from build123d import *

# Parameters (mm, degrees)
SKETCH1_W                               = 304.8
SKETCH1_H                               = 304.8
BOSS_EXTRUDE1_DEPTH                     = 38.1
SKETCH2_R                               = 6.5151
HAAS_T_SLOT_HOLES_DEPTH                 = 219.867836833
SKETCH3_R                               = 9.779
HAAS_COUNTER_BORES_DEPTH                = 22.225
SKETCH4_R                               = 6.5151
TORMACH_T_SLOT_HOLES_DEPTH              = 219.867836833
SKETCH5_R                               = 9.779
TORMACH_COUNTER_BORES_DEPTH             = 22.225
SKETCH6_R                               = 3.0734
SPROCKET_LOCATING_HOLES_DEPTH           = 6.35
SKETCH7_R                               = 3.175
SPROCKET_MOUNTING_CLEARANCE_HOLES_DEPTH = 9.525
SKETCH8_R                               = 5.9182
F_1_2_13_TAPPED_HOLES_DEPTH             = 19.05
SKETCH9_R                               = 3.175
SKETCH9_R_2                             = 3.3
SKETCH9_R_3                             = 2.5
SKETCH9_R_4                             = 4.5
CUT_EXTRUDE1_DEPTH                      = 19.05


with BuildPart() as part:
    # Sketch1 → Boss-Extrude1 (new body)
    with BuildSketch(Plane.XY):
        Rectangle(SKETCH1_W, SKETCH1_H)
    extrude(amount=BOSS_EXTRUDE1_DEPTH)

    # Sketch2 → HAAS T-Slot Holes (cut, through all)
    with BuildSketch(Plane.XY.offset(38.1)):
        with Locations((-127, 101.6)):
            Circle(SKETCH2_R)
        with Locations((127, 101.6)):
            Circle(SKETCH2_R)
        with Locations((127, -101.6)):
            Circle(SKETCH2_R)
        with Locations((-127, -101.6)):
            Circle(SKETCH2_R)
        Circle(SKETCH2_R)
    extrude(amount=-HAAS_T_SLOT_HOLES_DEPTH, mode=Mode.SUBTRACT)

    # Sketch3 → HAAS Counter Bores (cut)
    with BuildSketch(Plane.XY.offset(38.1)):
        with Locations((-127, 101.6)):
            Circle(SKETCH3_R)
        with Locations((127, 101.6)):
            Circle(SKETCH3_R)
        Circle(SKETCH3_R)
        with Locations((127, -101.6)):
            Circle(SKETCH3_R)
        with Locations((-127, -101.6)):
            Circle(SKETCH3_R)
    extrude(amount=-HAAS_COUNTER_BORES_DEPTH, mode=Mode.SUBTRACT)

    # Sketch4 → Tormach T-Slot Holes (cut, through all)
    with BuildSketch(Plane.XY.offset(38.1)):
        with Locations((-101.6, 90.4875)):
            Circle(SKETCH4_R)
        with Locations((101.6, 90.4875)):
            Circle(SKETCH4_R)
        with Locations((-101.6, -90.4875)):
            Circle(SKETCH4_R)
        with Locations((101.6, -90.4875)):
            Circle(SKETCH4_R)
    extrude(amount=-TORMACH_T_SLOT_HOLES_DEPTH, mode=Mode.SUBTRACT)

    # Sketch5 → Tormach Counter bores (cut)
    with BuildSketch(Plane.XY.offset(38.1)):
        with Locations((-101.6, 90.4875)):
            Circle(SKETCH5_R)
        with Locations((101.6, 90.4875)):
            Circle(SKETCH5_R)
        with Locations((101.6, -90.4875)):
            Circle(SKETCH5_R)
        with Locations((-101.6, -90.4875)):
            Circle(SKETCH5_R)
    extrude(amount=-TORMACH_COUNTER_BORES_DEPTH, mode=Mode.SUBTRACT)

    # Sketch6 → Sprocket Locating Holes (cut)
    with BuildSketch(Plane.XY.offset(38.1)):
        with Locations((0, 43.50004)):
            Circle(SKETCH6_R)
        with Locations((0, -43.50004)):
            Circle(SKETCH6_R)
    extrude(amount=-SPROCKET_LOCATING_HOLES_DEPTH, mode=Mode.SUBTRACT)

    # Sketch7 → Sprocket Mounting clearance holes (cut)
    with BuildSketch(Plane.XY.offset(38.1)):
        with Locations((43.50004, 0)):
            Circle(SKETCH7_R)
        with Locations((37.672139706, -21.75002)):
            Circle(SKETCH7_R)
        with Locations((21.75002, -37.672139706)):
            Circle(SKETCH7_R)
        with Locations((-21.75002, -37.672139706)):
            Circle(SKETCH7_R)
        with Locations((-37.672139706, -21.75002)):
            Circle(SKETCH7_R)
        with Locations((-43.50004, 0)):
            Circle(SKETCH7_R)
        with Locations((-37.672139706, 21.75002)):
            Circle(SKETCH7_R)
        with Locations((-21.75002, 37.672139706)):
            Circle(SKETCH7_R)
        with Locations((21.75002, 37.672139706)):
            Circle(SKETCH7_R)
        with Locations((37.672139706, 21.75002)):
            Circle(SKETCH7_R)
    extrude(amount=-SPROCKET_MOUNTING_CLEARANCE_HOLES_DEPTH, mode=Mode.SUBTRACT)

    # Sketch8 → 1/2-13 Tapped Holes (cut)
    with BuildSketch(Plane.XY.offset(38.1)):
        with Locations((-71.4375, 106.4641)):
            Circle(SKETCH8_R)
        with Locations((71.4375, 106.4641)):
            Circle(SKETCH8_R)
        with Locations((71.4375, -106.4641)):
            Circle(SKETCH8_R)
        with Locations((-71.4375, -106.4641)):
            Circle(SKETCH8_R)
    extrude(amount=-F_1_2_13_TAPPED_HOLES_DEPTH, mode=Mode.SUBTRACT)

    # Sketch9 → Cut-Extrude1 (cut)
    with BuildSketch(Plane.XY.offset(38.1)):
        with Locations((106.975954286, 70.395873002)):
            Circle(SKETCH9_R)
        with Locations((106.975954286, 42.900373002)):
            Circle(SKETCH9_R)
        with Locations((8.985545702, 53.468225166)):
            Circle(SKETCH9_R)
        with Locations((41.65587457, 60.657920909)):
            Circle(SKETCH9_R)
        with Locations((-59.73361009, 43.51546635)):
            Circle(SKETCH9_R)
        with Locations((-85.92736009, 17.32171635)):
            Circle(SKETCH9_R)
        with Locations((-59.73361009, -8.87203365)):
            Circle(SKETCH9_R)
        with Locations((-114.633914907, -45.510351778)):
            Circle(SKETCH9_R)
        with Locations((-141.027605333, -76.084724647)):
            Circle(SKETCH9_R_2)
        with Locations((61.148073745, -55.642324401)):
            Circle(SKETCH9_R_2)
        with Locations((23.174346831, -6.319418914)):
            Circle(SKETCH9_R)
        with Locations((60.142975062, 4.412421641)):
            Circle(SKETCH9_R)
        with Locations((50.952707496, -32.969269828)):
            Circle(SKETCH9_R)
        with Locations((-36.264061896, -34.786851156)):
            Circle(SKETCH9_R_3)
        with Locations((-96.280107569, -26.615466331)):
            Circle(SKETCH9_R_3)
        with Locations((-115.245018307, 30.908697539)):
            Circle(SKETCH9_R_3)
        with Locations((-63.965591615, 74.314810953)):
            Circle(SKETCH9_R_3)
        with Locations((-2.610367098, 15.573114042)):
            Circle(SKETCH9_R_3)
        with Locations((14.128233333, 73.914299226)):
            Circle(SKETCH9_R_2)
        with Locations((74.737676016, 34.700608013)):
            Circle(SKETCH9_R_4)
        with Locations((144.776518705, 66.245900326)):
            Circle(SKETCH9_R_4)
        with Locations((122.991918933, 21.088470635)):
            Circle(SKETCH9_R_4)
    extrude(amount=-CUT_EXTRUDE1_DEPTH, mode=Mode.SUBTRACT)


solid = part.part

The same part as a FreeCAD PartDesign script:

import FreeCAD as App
import Part
import Sketcher
from FreeCAD import Vector
Q = App.Units.Quantity

doc = App.newDocument("Part")
body = doc.addObject("PartDesign::Body", "Body")

# Sketch on XY plane
sketch1 = body.newObject("Sketcher::SketchObject", "Sketch")
sketch1.AttachmentSupport = (doc.getObject("XY_Plane"), [""])
sketch1.MapMode = "FlatFace"
sketch1.addGeometry([
    Part.LineSegment(Vector(-152, 152, 0), Vector(-152, -152, 0)),
    Part.LineSegment(Vector(-152, -152, 0), Vector(152, -152, 0)),
    Part.LineSegment(Vector(152, -152, 0), Vector(152, 152, 0)),
    Part.LineSegment(Vector(152, 152, 0), Vector(-152, 152, 0)),
], False)
sketch1.addConstraint([
    Sketcher.Constraint("Coincident", 0, 2, 1, 1),
    Sketcher.Constraint("Coincident", 1, 2, 2, 1),
    Sketcher.Constraint("Coincident", 2, 2, 3, 1),
    Sketcher.Constraint("Coincident", 3, 2, 0, 1),
    Sketcher.Constraint("Vertical", 0),
    Sketcher.Constraint("Horizontal", 1),
    Sketcher.Constraint("Vertical", 2),
    Sketcher.Constraint("Horizontal", 3),
    Sketcher.Constraint("Symmetric", 0, 2, 2, 2, -1, 1),
    Sketcher.Constraint("Equal", 3, 0),
    Sketcher.Constraint("DistanceX", 1, 1, 1, 2, Q("12 in")),
])
pad1 = body.newObject("PartDesign::Pad", "Pad")
pad1.Profile = sketch1
pad1.Length = Q("1.5 in")

# Sketch on XY plane
sketch2 = body.newObject("Sketcher::SketchObject", "Sketch001")
sketch2.AttachmentSupport = (doc.getObject("XY_Plane"), [""])
sketch2.MapMode = "FlatFace"
sketch2.AttachmentOffset = App.Placement(Vector(0, 0, 1.5 * 25.4), App.Rotation())
sketch2.addGeometry([
    Part.Circle(Vector(-127, 102, 0), Vector(0, 0, 1), 7),  # 0
    Part.Circle(Vector(127, 102, 0), Vector(0, 0, 1), 7),  # 1
    Part.Circle(Vector(127, -102, 0), Vector(0, 0, 1), 7),  # 2
    Part.Circle(Vector(-127, -102, 0), Vector(0, 0, 1), 7),  # 3
    Part.Circle(Vector(0, 0, 0), Vector(0, 0, 1), 7),  # 4
], False)
sketch2.addConstraint([
    Sketcher.Constraint("Coincident", 4, 3, -1, 1),
    Sketcher.Constraint("Equal", 0, 1),
    Sketcher.Constraint("Equal", 1, 2),
    Sketcher.Constraint("Equal", 2, 3),
    Sketcher.Constraint("Equal", 3, 4),
    Sketcher.Constraint("Symmetric", 0, 3, 2, 3, -1, 1),
    Sketcher.Constraint("Symmetric", 1, 3, 3, 3, -1, 1),
    Sketcher.Constraint("Symmetric", 0, 3, 1, 3, -2),
    Sketcher.Constraint("Diameter", 0, Q("0.513 in")),
    Sketcher.Constraint("DistanceX", 0, 3, -1, 1, Q("5 in")),
    Sketcher.Constraint("DistanceY", -1, 1, 0, 3, Q("4 in")),
])
pocket1 = body.newObject("PartDesign::Pocket", "Pocket")
pocket1.Profile = sketch2
pocket1.Type = "ThroughAll"

# Sketch on XY plane
sketch3 = body.newObject("Sketcher::SketchObject", "Sketch002")
sketch3.AttachmentSupport = (doc.getObject("XY_Plane"), [""])
sketch3.MapMode = "FlatFace"
sketch3.AttachmentOffset = App.Placement(Vector(0, 0, 1.5 * 25.4), App.Rotation())
sketch3.addGeometry([
    Part.Circle(Vector(-127, 102, 0), Vector(0, 0, 1), 10),  # 0
    Part.Circle(Vector(127, 102, 0), Vector(0, 0, 1), 10),  # 1
    Part.Circle(Vector(0, 0, 0), Vector(0, 0, 1), 10),  # 2
    Part.Circle(Vector(127, -102, 0), Vector(0, 0, 1), 10),  # 3
    Part.Circle(Vector(-127, -102, 0), Vector(0, 0, 1), 10),  # 4
], False)
sketch3.addConstraint([
    Sketcher.Constraint("Coincident", 2, 3, -1, 1),
    Sketcher.Constraint("Equal", 0, 1),
    Sketcher.Constraint("Equal", 1, 2),
    Sketcher.Constraint("Equal", 2, 3),
    Sketcher.Constraint("Equal", 3, 4),
    Sketcher.Constraint("Symmetric", 0, 3, 3, 3, -1, 1),
    Sketcher.Constraint("Symmetric", 1, 3, 4, 3, -1, 1),
    Sketcher.Constraint("Symmetric", 0, 3, 1, 3, -2),
    Sketcher.Constraint("Diameter", 0, Q("0.77 in")),
    Sketcher.Constraint("DistanceX", 0, 3, -1, 1, Q("5 in")),
    Sketcher.Constraint("DistanceY", -1, 1, 0, 3, Q("4 in")),
])
pocket2 = body.newObject("PartDesign::Pocket", "Pocket001")
pocket2.Profile = sketch3
pocket2.Length = Q("0.875 in")

# Sketch on XY plane
sketch4 = body.newObject("Sketcher::SketchObject", "Sketch003")
sketch4.AttachmentSupport = (doc.getObject("XY_Plane"), [""])
sketch4.MapMode = "FlatFace"
sketch4.AttachmentOffset = App.Placement(Vector(0, 0, 1.5 * 25.4), App.Rotation())
sketch4.addGeometry([
    Part.Circle(Vector(-102, 90, 0), Vector(0, 0, 1), 7),
    Part.Circle(Vector(102, 90, 0), Vector(0, 0, 1), 7),
    Part.Circle(Vector(-102, -90, 0), Vector(0, 0, 1), 7),
    Part.Circle(Vector(102, -90, 0), Vector(0, 0, 1), 7),
], False)
sketch4.addConstraint([
    Sketcher.Constraint("Equal", 0, 1),
    Sketcher.Constraint("Equal", 1, 2),
    Sketcher.Constraint("Equal", 2, 3),
    Sketcher.Constraint("Symmetric", 1, 3, 2, 3, -1, 1),
    Sketcher.Constraint("Symmetric", 0, 3, 3, 3, -1, 1),
    Sketcher.Constraint("Symmetric", 0, 3, 1, 3, -2),
    Sketcher.Constraint("Diameter", 0, Q("0.513 in")),
    Sketcher.Constraint("DistanceX", 0, 3, -1, 1, Q("4 in")),
    Sketcher.Constraint("DistanceY", -1, 1, 0, 3, Q("3.5625 in")),
])
pocket3 = body.newObject("PartDesign::Pocket", "Pocket002")
pocket3.Profile = sketch4
pocket3.Type = "ThroughAll"

# Sketch on XY plane
sketch5 = body.newObject("Sketcher::SketchObject", "Sketch004")
sketch5.AttachmentSupport = (doc.getObject("XY_Plane"), [""])
sketch5.MapMode = "FlatFace"
sketch5.AttachmentOffset = App.Placement(Vector(0, 0, 1.5 * 25.4), App.Rotation())
sketch5.addGeometry([
    Part.Circle(Vector(-102, 90, 0), Vector(0, 0, 1), 10),
    Part.Circle(Vector(102, 90, 0), Vector(0, 0, 1), 10),
    Part.Circle(Vector(102, -90, 0), Vector(0, 0, 1), 10),
    Part.Circle(Vector(-102, -90, 0), Vector(0, 0, 1), 10),
], False)
sketch5.addConstraint([
    Sketcher.Constraint("Equal", 0, 1),
    Sketcher.Constraint("Equal", 1, 2),
    Sketcher.Constraint("Equal", 2, 3),
    Sketcher.Constraint("Symmetric", 0, 3, 2, 3, -1, 1),
    Sketcher.Constraint("Symmetric", 1, 3, 3, 3, -1, 1),
    Sketcher.Constraint("Symmetric", 0, 3, 1, 3, -2),
    Sketcher.Constraint("Diameter", 0, Q("0.77 in")),
    Sketcher.Constraint("DistanceX", 0, 3, -1, 1, Q("4 in")),
    Sketcher.Constraint("DistanceY", -1, 1, 0, 3, Q("3.5625 in")),
])
pocket4 = body.newObject("PartDesign::Pocket", "Pocket003")
pocket4.Profile = sketch5
pocket4.Length = Q("0.875 in")

# Sketch on XY plane
sketch6 = body.newObject("Sketcher::SketchObject", "Sketch005")
sketch6.AttachmentSupport = (doc.getObject("XY_Plane"), [""])
sketch6.MapMode = "FlatFace"
sketch6.AttachmentOffset = App.Placement(Vector(0, 0, 1.5 * 25.4), App.Rotation())
sketch6.addGeometry([
    Part.Circle(Vector(0, 43.5, 0), Vector(0, 0, 1), 3.1),
    Part.Circle(Vector(0, -43.5, 0), Vector(0, 0, 1), 3.1),
], False)
sketch6.addConstraint([
    Sketcher.Constraint("Equal", 0, 1),
    Sketcher.Constraint("Symmetric", 0, 3, 1, 3, -1, 1),
    Sketcher.Constraint("PointOnObject", 0, 3, -2),
    Sketcher.Constraint("Diameter", 0, Q("0.242 in")),
    Sketcher.Constraint("DistanceY", -1, 1, 0, 3, Q("1.7126 in")),
])
pocket5 = body.newObject("PartDesign::Pocket", "Pocket004")
pocket5.Profile = sketch6
pocket5.Length = Q("0.25 in")

# Sketch on XY plane
sketch7 = body.newObject("Sketcher::SketchObject", "Sketch006")
sketch7.AttachmentSupport = (doc.getObject("XY_Plane"), [""])
sketch7.MapMode = "FlatFace"
sketch7.AttachmentOffset = App.Placement(Vector(0, 0, 1.5 * 25.4), App.Rotation())
sketch7.addGeometry([
    Part.Circle(Vector(43.5, 0, 0), Vector(0, 0, 1), 3.2),  # 0
    Part.Circle(Vector(37.7, -21.8, 0), Vector(0, 0, 1), 3.2),  # 1
    Part.Circle(Vector(21.8, -37.7, 0), Vector(0, 0, 1), 3.2),  # 2
    Part.Circle(Vector(-21.8, -37.7, 0), Vector(0, 0, 1), 3.2),  # 3
    Part.Circle(Vector(-37.7, -21.8, 0), Vector(0, 0, 1), 3.2),  # 4
    Part.Circle(Vector(-43.5, 0, 0), Vector(0, 0, 1), 3.2),  # 5
    Part.Circle(Vector(-37.7, 21.8, 0), Vector(0, 0, 1), 3.2),  # 6
    Part.Circle(Vector(-21.8, 37.7, 0), Vector(0, 0, 1), 3.2),  # 7
    Part.Circle(Vector(21.8, 37.7, 0), Vector(0, 0, 1), 3.2),  # 8
    Part.Circle(Vector(37.7, 21.8, 0), Vector(0, 0, 1), 3.2),  # 9
], False)
sketch7.addConstraint([
    Sketcher.Constraint("Equal", 0, 1),
    Sketcher.Constraint("Equal", 1, 2),
    Sketcher.Constraint("Equal", 2, 3),
    Sketcher.Constraint("Equal", 3, 4),
    Sketcher.Constraint("Equal", 4, 5),
    Sketcher.Constraint("Equal", 5, 6),
    Sketcher.Constraint("Equal", 6, 7),
    Sketcher.Constraint("Equal", 7, 8),
    Sketcher.Constraint("Equal", 8, 9),
    Sketcher.Constraint("Symmetric", 0, 3, 5, 3, -1, 1),
    Sketcher.Constraint("Symmetric", 1, 3, 6, 3, -1, 1),
    Sketcher.Constraint("Symmetric", 2, 3, 7, 3, -1, 1),
    Sketcher.Constraint("Symmetric", 3, 3, 8, 3, -1, 1),
    Sketcher.Constraint("Symmetric", 4, 3, 9, 3, -1, 1),
    Sketcher.Constraint("Symmetric", 2, 3, 3, 3, -2),
    Sketcher.Constraint("Symmetric", 1, 3, 4, 3, -2),
    Sketcher.Constraint("PointOnObject", 0, 3, -1),
    Sketcher.Constraint("Diameter", 0, Q("0.25 in")),
    Sketcher.Constraint("DistanceX", -1, 1, 0, 3, Q("1.7126 in")),
    Sketcher.Constraint("DistanceY", 1, 3, -1, 1, Q("0.8563 in")),
    Sketcher.Constraint("DistanceX", -1, 1, 2, 3, Q("0.8563 in")),
    Sketcher.Constraint("DistanceX", 1, 3, 0, 3, 5.8279),
    Sketcher.Constraint("DistanceY", 2, 3, -1, 1, 37.67214),
])
pocket6 = body.newObject("PartDesign::Pocket", "Pocket005")
pocket6.Profile = sketch7
pocket6.Length = Q("0.375 in")

# Sketch on XY plane
sketch8 = body.newObject("Sketcher::SketchObject", "Sketch007")
sketch8.AttachmentSupport = (doc.getObject("XY_Plane"), [""])
sketch8.MapMode = "FlatFace"
sketch8.AttachmentOffset = App.Placement(Vector(0, 0, 1.5 * 25.4), App.Rotation())
sketch8.addGeometry([
    Part.Circle(Vector(-71, 106, 0), Vector(0, 0, 1), 6),
    Part.Circle(Vector(71, 106, 0), Vector(0, 0, 1), 6),
    Part.Circle(Vector(71, -106, 0), Vector(0, 0, 1), 6),
    Part.Circle(Vector(-71, -106, 0), Vector(0, 0, 1), 6),
], False)
sketch8.addConstraint([
    Sketcher.Constraint("Equal", 0, 1),
    Sketcher.Constraint("Equal", 1, 2),
    Sketcher.Constraint("Equal", 2, 3),
    Sketcher.Constraint("Symmetric", 0, 3, 2, 3, -1, 1),
    Sketcher.Constraint("Symmetric", 1, 3, 3, 3, -1, 1),
    Sketcher.Constraint("Symmetric", 0, 3, 1, 3, -2),
    Sketcher.Constraint("Diameter", 0, Q("0.466 in")),
    Sketcher.Constraint("DistanceX", 0, 3, -1, 1, Q("2.8125 in")),
    Sketcher.Constraint("DistanceY", 2, 3, 1, 3, Q("8.383 in")),
])
pocket7 = body.newObject("PartDesign::Pocket", "Pocket006")
pocket7.Profile = sketch8
pocket7.Length = Q("0.75 in")

# Sketch on XY plane
sketch9 = body.newObject("Sketcher::SketchObject", "Sketch008")
sketch9.AttachmentSupport = (doc.getObject("XY_Plane"), [""])
sketch9.MapMode = "FlatFace"
sketch9.AttachmentOffset = App.Placement(Vector(0, 0, 1.5 * 25.4), App.Rotation())
sketch9.addGeometry([
    Part.Circle(Vector(107, 70.4, 0), Vector(0, 0, 1), 3.2),  # 0
    Part.Circle(Vector(107, 42.9, 0), Vector(0, 0, 1), 3.2),  # 1
    Part.Circle(Vector(9, 53.5, 0), Vector(0, 0, 1), 3.2),  # 2
    Part.Circle(Vector(41.7, 60.7, 0), Vector(0, 0, 1), 3.2),  # 3
    Part.Circle(Vector(-59.7, 43.5, 0), Vector(0, 0, 1), 3.2),  # 4
    Part.Circle(Vector(-85.9, 17.3, 0), Vector(0, 0, 1), 3.2),  # 5
    Part.Circle(Vector(-59.7, -8.9, 0), Vector(0, 0, 1), 3.2),  # 6
    Part.Circle(Vector(-114.6, -45.5, 0), Vector(0, 0, 1), 3.2),  # 7
    Part.Circle(Vector(-141, -76.1, 0), Vector(0, 0, 1), 3.3),  # 8
    Part.Circle(Vector(61.1, -55.6, 0), Vector(0, 0, 1), 3.3),  # 9
    Part.Circle(Vector(23.2, -6.3, 0), Vector(0, 0, 1), 3.2),  # 10
    Part.Circle(Vector(60.1, 4.4, 0), Vector(0, 0, 1), 3.2),  # 11
    Part.Circle(Vector(51, -33, 0), Vector(0, 0, 1), 3.2),  # 12
    Part.Circle(Vector(-36.3, -34.8, 0), Vector(0, 0, 1), 2.5),  # 13
    Part.Circle(Vector(-96.3, -26.6, 0), Vector(0, 0, 1), 2.5),  # 14
    Part.Circle(Vector(-115.2, 30.9, 0), Vector(0, 0, 1), 2.5),  # 15
    Part.Circle(Vector(-64, 74.3, 0), Vector(0, 0, 1), 2.5),  # 16
    Part.Circle(Vector(-2.6, 15.6, 0), Vector(0, 0, 1), 2.5),  # 17
    Part.Circle(Vector(14.1, 73.9, 0), Vector(0, 0, 1), 3.3),  # 18
    Part.Circle(Vector(74.7, 34.7, 0), Vector(0, 0, 1), 4.5),  # 19
    Part.Circle(Vector(144.8, 66.2, 0), Vector(0, 0, 1), 4.5),  # 20
    Part.Circle(Vector(123, 21.1, 0), Vector(0, 0, 1), 4.5),  # 21
], False)
sketch9.addConstraint([
    Sketcher.Constraint("Equal", 0, 1),
    Sketcher.Constraint("Equal", 1, 2),
    Sketcher.Constraint("Equal", 2, 3),
    Sketcher.Constraint("Equal", 3, 4),
    Sketcher.Constraint("Equal", 4, 5),
    Sketcher.Constraint("Equal", 5, 6),
    Sketcher.Constraint("Equal", 6, 7),
    Sketcher.Constraint("Equal", 8, 9),
    Sketcher.Constraint("Equal", 7, 10),
    Sketcher.Constraint("Equal", 10, 11),
    Sketcher.Constraint("Equal", 11, 12),
    Sketcher.Constraint("Equal", 13, 14),
    Sketcher.Constraint("Equal", 14, 15),
    Sketcher.Constraint("Equal", 15, 16),
    Sketcher.Constraint("Equal", 16, 17),
    Sketcher.Constraint("Equal", 9, 18),
    Sketcher.Constraint("Equal", 19, 20),
    Sketcher.Constraint("Equal", 20, 21),
    Sketcher.Constraint("Vertical", 0, 3, 1, 3),
    Sketcher.Constraint("Vertical", 4, 3, 6, 3),
    Sketcher.Constraint("Diameter", 0, Q("0.25 in")),
    Sketcher.Constraint("Diameter", 8, 6.6),
    Sketcher.Constraint("Diameter", 13, 5.0),
    Sketcher.Constraint("Diameter", 19, 9.0),
    Sketcher.Constraint("DistanceX", 5, 3, 4, 3, Q("1.03125 in")),
    Sketcher.Constraint("DistanceY", 5, 3, 4, 3, Q("1.03125 in")),
    Sketcher.Constraint("DistanceY", 6, 3, 5, 3, Q("1.03125 in")),
    Sketcher.Constraint("DistanceX", 17, 3, 18, 3, Q("0.659 in")),
    Sketcher.Constraint("DistanceY", 1, 3, 0, 3, Q("1.0825 in")),
    Sketcher.Constraint("DistanceY", -1, 1, 18, 3, 73.914299),
    Sketcher.Constraint("DistanceY", -1, 1, 20, 3, 66.2459),
    Sketcher.Constraint("DistanceX", 3, 3, 9, 3, 19.492199),
    Sketcher.Constraint("DistanceX", 2, 3, 10, 3, 14.188801),
    Sketcher.Constraint("DistanceX", 3, 3, 11, 3, 18.4871),
    Sketcher.Constraint("DistanceY", 11, 3, 3, 3, 56.245499),
    Sketcher.Constraint("DistanceX", 5, 3, 13, 3, 49.663298),
    Sketcher.Constraint("DistanceY", 7, 3, 13, 3, 10.723501),
    Sketcher.Constraint("DistanceX", 11, 3, 19, 3, 14.594701),
    Sketcher.Constraint("DistanceX", 21, 3, 20, 3, 21.7846),
    Sketcher.Constraint("DistanceY", -1, 1, 3, 3, 60.657921),
    Sketcher.Constraint("DistanceX", 4, 3, -1, 1, 59.73361),
    Sketcher.Constraint("DistanceY", 7, 3, -1, 1, 45.510352),
    Sketcher.Constraint("DistanceY", 10, 3, -1, 1, 6.319419),
    Sketcher.Constraint("DistanceY", 12, 3, -1, 1, 32.96927),
    Sketcher.Constraint("DistanceX", 15, 3, -1, 1, 115.245018),
    Sketcher.Constraint("DistanceX", 16, 3, -1, 1, 63.965592),
    Sketcher.Constraint("DistanceY", -1, 1, 16, 3, 74.314811),
    Sketcher.Constraint("DistanceY", -1, 1, 19, 3, 34.700608),
    Sketcher.Constraint("DistanceX", -1, 1, 20, 3, 144.776519),
    Sketcher.Constraint("DistanceY", -1, 1, 21, 3, 21.088471),
    Sketcher.Constraint("DistanceX", 2, 3, 1, 3, 97.990409),
    Sketcher.Constraint("DistanceX", 2, 3, 3, 3, 32.670329),
    Sketcher.Constraint("DistanceY", 4, 3, 2, 3, 9.952759),
    Sketcher.Constraint("DistanceY", 7, 3, 6, 3, 36.638318),
    Sketcher.Constraint("DistanceX", 7, 3, 2, 3, 123.619461),
    Sketcher.Constraint("DistanceX", 8, 3, 7, 3, 26.39369),
    Sketcher.Constraint("DistanceY", 8, 3, 6, 3, 67.212691),
    Sketcher.Constraint("DistanceY", 9, 3, 2, 3, 109.11055),
    Sketcher.Constraint("DistanceY", 11, 3, 1, 3, 38.487951),
    Sketcher.Constraint("DistanceX", 10, 3, 12, 3, 27.778361),
    Sketcher.Constraint("DistanceX", 13, 3, 10, 3, 59.438409),
    Sketcher.Constraint("DistanceY", 8, 3, 14, 3, 49.469258),
    Sketcher.Constraint("DistanceY", 5, 3, 15, 3, 13.586981),
    Sketcher.Constraint("DistanceX", 15, 3, 14, 3, 18.964911),
    Sketcher.Constraint("DistanceY", 17, 3, 2, 3, 37.895111),
    Sketcher.Constraint("DistanceX", 17, 3, 3, 3, 44.266242),
])
pocket8 = body.newObject("PartDesign::Pocket", "Pocket007")
pocket8.Profile = sketch9
pocket8.Length = Q("0.75 in")

doc.recompute()
